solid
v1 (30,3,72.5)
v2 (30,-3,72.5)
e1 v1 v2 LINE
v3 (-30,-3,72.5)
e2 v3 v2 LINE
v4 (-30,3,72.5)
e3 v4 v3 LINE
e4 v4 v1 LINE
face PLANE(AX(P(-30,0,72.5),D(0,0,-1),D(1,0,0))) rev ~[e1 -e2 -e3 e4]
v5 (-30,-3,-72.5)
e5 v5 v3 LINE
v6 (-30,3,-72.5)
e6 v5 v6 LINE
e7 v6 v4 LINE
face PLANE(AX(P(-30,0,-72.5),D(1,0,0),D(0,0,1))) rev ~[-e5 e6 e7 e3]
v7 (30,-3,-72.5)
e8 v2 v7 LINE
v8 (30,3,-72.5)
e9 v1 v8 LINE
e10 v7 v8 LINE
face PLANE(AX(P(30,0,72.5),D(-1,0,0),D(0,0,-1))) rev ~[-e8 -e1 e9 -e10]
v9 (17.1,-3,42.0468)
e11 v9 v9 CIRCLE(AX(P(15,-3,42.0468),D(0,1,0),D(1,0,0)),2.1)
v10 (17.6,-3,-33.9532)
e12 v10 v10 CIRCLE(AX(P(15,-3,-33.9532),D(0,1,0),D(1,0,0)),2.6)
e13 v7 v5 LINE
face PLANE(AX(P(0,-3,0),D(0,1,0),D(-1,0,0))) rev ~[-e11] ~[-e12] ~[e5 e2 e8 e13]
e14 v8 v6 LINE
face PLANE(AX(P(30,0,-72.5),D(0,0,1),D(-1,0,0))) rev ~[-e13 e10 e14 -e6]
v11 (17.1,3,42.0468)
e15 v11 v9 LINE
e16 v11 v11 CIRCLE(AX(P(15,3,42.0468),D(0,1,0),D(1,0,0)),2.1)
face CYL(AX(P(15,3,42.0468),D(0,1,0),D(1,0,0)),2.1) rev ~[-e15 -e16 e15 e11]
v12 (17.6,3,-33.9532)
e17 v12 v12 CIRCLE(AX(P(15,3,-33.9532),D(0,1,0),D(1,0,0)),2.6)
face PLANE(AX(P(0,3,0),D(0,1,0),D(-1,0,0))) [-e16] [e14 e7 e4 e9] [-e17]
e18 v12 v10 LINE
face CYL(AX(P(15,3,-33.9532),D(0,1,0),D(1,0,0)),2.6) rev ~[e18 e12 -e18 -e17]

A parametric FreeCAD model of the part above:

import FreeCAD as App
import Part
import Sketcher
from FreeCAD import Vector
Q = App.Units.Quantity

doc = App.newDocument("Part")
params = doc.addObject("Spreadsheet::Sheet", "Params")
for row, (alias, value) in enumerate([
    ("sketch1_width", "60 mm"),
    ("sketch1_height", "145 mm"),
    ("pad1_length", "6 mm"),
    ("sketch2_diameter", "4.2 mm"),
    ("sketch2_diameter2", "5.2 mm"),
], start=1):
    params.set(f"A{row}", alias)
    params.set(f"B{row}", "=" + value)
    params.setAlias(f"B{row}", alias)

body = doc.addObject("PartDesign::Body", "Body")

sketch1 = doc.addObject("Sketcher::SketchObject", "Sketch")
body.addObject(sketch1)
sketch1.AttachmentSupport = (doc.XZ_Plane, [""])
sketch1.MapMode = "FlatFace"
sketch1.addGeometry([
    Part.LineSegment(Vector(30, 72.5, 0), Vector(30, -72.5, 0)),
    Part.LineSegment(Vector(30, -72.5, 0), Vector(-30, -72.5, 0)),
    Part.LineSegment(Vector(-30, -72.5, 0), Vector(-30, 72.5, 0)),
    Part.LineSegment(Vector(-30, 72.5, 0), Vector(30, 72.5, 0)),
], False)
sketch1.addConstraint([
    Sketcher.Constraint("Coincident", 0, 2, 1, 1),
    Sketcher.Constraint("Coincident", 1, 2, 2, 1),
    Sketcher.Constraint("Coincident", 2, 2, 3, 1),
    Sketcher.Constraint("Coincident", 3, 2, 0, 1),
    Sketcher.Constraint("Vertical", 0),
    Sketcher.Constraint("Horizontal", 1),
    Sketcher.Constraint("Vertical", 2),
    Sketcher.Constraint("Horizontal", 3),
    Sketcher.Constraint("Symmetric", 0, 2, 2, 2, -1, 1),
    Sketcher.Constraint("DistanceX", 1, 2, 1, 1, Q("60 mm")),
    Sketcher.Constraint("DistanceY", 0, 2, 0, 1, Q("145 mm")),
])
sketch1.setExpression("Constraints[9]", "Params.sketch1_width")
sketch1.setExpression("Constraints[10]", "Params.sketch1_height")
pad1 = doc.addObject("PartDesign::Pad", "Pad")
body.addObject(pad1)
pad1.Profile = sketch1
pad1.setExpression("Length", "Params.pad1_length")
pad1.Midplane = True

sketch2 = doc.addObject("Sketcher::SketchObject", "Sketch001")
body.addObject(sketch2)
sketch2.AttachmentSupport = (doc.XZ_Plane, [""])
sketch2.MapMode = "FlatFace"
sketch2.AttachmentOffset = App.Placement(Vector(0, 0, -3), App.Rotation())
sketch2.addGeometry([
    Part.Circle(Vector(15, 42.0468, 0), Vector(0, 0, 1), 2.1),
    Part.Circle(Vector(15, -33.9532, 0), Vector(0, 0, 1), 2.6),
], False)
sketch2.addConstraint([
    Sketcher.Constraint("Vertical", 0, 3, 1, 3),
    Sketcher.Constraint("Diameter", 0, Q("4.2 mm")),
    Sketcher.Constraint("Diameter", 1, Q("5.2 mm")),
    Sketcher.Constraint("DistanceX", -1, 1, 0, 3, Q("15 mm")),
    Sketcher.Constraint("DistanceY", 1, 3, 0, 3, Q("76 mm")),
    Sketcher.Constraint("DistanceY", -1, 1, 0, 3, Q("42.0468 mm")),
])
sketch2.setExpression("Constraints[1]", "Params.sketch2_diameter")
sketch2.setExpression("Constraints[2]", "Params.sketch2_diameter2")
pocket1 = doc.addObject("PartDesign::Pocket", "Pocket")
body.addObject(pocket1)
pocket1.Profile = sketch2
pocket1.Type = "UpToFirst"
pocket1.Reversed = True

doc.recompute()
